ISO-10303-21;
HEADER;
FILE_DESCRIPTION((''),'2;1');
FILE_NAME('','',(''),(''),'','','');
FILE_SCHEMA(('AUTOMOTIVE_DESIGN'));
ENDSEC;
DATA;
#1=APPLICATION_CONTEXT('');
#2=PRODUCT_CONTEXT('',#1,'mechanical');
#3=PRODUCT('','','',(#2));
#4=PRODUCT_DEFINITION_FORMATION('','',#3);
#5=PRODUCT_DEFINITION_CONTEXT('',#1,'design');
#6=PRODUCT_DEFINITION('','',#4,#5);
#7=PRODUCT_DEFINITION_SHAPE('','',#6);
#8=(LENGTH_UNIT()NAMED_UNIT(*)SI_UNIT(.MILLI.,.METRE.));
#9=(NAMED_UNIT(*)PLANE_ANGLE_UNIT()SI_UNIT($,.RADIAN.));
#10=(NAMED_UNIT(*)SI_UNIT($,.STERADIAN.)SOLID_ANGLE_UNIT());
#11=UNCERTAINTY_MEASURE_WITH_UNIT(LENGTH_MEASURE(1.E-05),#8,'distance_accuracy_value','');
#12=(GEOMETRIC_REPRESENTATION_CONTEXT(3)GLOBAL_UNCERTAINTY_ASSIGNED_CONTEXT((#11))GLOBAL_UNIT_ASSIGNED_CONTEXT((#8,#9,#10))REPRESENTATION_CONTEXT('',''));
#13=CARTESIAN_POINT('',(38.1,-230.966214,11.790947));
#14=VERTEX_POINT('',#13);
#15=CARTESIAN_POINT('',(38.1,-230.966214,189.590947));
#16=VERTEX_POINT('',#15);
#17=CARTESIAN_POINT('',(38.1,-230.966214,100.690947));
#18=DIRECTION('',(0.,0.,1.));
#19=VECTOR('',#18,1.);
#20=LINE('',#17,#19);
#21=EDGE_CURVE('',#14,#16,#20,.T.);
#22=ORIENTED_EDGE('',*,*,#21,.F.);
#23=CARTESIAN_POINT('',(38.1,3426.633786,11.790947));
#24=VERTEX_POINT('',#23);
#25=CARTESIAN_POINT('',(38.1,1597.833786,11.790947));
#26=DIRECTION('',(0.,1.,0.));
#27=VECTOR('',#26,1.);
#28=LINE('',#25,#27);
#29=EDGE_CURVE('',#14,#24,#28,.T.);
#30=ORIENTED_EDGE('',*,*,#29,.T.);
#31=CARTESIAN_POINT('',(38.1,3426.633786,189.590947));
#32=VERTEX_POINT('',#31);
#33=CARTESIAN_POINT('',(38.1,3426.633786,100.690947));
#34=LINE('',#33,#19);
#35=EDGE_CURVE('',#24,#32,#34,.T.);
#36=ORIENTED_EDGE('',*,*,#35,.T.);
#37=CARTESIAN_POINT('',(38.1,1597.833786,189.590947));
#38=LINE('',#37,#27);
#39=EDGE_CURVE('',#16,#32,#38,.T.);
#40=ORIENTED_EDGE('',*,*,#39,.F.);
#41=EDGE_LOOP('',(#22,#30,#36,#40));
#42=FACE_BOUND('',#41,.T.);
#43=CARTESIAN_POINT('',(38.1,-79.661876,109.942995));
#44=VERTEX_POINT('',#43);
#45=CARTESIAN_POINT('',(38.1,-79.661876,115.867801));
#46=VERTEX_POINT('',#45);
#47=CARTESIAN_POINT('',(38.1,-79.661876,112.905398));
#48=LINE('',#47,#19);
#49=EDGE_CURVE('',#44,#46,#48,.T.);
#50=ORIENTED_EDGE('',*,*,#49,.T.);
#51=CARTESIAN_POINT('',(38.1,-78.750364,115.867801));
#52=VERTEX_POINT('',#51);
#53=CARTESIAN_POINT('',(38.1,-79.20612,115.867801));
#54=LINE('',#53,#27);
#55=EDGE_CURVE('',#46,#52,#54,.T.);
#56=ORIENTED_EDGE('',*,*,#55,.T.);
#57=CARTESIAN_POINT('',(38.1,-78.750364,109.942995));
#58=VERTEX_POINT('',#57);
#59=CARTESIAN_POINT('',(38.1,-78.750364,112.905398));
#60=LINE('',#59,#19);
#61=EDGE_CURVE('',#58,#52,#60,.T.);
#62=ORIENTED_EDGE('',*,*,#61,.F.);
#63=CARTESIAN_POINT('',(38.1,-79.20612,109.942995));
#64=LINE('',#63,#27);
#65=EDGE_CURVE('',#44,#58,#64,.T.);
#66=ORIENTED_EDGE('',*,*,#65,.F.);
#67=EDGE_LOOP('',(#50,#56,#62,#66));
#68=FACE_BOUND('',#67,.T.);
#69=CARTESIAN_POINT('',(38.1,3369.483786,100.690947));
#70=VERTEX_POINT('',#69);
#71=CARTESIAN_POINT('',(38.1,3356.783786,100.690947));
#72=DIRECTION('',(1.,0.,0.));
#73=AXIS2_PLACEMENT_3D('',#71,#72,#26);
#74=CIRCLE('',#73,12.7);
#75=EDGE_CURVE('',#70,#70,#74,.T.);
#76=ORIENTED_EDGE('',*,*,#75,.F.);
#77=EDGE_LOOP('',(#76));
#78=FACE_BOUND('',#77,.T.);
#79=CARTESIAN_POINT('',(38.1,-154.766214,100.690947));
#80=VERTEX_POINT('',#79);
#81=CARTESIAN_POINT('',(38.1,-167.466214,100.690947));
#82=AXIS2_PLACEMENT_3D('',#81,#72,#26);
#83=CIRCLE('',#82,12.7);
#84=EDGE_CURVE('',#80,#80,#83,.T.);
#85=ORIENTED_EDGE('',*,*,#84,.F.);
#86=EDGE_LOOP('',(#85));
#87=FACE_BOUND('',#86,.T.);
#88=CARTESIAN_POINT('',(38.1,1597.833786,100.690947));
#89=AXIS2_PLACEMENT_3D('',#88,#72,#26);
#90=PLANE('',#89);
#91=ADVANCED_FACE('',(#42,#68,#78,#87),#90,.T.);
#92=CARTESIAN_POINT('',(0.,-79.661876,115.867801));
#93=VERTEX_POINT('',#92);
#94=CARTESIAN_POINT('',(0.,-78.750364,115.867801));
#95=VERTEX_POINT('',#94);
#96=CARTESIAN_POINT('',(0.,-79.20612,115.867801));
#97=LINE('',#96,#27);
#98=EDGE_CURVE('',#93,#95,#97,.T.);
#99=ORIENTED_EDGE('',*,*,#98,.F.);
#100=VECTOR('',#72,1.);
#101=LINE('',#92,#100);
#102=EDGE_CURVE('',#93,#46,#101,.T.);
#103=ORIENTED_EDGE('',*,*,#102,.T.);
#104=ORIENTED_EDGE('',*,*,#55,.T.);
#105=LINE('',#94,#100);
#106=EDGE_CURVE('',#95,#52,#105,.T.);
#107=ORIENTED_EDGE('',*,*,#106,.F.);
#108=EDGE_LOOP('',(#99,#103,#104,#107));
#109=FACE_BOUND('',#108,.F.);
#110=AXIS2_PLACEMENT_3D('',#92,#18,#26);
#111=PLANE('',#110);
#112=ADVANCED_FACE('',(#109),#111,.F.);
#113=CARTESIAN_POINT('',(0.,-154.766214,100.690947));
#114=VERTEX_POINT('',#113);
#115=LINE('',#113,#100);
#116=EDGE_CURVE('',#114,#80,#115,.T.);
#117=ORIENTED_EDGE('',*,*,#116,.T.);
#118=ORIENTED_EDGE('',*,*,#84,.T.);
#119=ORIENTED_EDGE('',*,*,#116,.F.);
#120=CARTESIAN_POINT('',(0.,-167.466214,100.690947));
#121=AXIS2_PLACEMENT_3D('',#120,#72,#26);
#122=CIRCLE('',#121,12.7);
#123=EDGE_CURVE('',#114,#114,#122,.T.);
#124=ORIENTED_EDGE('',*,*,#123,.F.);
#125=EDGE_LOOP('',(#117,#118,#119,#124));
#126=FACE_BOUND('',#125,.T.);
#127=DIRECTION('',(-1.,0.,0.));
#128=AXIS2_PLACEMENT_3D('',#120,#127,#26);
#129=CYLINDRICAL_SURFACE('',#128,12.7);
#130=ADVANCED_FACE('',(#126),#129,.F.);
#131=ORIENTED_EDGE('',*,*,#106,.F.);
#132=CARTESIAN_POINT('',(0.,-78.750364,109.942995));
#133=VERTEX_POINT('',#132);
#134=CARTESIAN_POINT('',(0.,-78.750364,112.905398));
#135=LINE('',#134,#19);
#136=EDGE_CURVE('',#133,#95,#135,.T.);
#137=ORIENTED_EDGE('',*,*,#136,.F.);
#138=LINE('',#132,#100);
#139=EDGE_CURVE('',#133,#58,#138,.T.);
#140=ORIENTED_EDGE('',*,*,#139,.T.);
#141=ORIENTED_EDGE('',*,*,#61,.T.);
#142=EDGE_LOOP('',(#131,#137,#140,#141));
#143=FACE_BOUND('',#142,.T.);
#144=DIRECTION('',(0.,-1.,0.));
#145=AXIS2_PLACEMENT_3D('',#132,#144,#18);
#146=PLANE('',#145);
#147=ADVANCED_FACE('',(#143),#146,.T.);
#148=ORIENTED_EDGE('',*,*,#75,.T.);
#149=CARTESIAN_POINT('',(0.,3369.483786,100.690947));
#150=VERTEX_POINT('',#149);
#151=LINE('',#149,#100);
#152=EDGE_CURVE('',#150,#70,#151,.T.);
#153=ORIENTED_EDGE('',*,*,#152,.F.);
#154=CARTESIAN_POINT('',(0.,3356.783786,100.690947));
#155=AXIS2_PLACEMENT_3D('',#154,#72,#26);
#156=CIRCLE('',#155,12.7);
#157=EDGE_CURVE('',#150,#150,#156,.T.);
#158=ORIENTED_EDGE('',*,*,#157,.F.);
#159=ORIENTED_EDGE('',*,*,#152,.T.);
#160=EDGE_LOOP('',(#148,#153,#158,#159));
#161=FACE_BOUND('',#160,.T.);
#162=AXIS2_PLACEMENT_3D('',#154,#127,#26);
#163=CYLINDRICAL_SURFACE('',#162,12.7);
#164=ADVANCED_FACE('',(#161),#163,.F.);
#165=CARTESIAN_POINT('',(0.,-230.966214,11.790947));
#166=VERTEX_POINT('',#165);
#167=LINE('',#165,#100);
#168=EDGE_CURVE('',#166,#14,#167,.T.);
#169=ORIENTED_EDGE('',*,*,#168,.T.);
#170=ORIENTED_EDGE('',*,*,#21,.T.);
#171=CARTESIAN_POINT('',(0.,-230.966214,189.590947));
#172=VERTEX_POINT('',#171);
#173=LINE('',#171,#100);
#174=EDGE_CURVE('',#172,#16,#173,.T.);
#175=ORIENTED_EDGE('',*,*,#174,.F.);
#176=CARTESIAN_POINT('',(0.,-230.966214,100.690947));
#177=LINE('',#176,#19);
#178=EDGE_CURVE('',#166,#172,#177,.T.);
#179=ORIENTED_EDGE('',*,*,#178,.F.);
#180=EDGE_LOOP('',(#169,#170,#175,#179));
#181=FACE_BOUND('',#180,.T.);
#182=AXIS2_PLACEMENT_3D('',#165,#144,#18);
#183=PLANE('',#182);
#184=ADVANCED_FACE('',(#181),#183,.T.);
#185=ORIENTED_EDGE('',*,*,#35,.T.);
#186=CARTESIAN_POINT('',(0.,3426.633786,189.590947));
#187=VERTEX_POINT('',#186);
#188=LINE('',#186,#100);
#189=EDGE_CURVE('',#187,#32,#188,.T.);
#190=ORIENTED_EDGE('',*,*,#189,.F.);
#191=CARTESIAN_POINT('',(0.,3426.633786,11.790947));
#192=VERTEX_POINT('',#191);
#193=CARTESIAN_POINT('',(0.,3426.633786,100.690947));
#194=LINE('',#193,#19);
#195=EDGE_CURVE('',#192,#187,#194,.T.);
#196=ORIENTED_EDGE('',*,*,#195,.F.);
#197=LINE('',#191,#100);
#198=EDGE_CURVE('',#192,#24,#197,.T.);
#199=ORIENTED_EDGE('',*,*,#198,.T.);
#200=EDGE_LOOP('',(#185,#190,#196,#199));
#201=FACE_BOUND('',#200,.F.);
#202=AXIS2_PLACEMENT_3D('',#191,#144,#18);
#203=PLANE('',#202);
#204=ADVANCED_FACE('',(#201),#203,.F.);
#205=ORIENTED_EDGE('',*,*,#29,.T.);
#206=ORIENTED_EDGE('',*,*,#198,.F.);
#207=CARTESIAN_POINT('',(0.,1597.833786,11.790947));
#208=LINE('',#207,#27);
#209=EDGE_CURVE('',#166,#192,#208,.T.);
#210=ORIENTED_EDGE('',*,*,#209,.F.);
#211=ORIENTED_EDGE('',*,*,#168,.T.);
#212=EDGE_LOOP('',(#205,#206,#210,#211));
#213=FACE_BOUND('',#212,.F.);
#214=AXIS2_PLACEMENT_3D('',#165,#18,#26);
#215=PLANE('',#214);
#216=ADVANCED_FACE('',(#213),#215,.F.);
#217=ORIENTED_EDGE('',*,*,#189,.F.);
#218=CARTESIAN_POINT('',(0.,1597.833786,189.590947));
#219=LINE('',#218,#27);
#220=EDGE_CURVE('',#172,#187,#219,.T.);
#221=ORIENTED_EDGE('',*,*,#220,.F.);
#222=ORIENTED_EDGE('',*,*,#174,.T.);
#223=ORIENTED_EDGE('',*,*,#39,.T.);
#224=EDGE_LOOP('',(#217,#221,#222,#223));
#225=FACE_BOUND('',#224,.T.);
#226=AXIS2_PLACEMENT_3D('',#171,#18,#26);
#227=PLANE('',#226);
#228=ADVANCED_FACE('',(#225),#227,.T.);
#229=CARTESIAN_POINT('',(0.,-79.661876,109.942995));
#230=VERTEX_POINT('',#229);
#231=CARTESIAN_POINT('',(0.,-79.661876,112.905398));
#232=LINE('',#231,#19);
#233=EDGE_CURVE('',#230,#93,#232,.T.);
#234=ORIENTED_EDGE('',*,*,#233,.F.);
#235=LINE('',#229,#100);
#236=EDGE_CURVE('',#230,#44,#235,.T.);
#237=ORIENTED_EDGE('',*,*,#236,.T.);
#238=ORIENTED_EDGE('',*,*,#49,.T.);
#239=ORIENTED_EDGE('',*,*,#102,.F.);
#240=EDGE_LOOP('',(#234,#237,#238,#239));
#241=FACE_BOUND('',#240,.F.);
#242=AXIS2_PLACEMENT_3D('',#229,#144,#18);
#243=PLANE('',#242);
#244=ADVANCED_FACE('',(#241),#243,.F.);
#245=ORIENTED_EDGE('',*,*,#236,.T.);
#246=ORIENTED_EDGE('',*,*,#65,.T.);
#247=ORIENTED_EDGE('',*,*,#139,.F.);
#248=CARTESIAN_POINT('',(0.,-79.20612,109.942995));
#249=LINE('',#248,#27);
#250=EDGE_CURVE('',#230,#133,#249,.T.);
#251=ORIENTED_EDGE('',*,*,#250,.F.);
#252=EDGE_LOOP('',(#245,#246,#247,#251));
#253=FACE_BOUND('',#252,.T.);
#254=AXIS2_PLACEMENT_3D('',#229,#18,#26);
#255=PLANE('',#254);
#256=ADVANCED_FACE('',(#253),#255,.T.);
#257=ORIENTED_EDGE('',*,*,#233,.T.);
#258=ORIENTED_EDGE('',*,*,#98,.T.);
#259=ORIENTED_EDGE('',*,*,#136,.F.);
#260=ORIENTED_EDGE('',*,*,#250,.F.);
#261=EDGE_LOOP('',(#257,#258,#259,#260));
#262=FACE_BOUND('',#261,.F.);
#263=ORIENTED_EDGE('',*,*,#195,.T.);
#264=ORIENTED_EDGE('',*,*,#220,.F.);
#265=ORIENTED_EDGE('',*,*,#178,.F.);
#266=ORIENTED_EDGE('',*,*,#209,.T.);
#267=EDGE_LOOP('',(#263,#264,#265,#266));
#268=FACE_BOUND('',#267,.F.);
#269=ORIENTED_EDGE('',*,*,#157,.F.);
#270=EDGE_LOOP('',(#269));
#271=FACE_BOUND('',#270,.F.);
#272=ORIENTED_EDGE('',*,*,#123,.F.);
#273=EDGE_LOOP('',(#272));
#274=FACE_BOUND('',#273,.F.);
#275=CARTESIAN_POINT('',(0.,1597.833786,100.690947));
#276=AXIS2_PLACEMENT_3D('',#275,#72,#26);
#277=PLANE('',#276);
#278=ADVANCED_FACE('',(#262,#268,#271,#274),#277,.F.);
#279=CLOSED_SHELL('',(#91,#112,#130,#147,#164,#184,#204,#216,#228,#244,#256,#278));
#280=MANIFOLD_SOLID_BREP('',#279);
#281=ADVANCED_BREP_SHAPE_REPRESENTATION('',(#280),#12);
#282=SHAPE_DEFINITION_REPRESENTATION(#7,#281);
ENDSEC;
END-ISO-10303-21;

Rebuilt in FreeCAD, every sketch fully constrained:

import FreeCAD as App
import Part
import Sketcher

V = App.Vector
Q = App.Units.Quantity

doc = App.newDocument("Part")
body = doc.addObject("PartDesign::Body", "Body")

sketch1 = doc.addObject("Sketcher::SketchObject", "Sketch")
body.addObject(sketch1)
sketch1.AttachmentSupport = (doc.YZ_Plane, [""])
sketch1.MapMode = "FlatFace"
sketch1.addGeometry([
    Part.LineSegment(V(-230.966214, 189.590947, 0), V(-230.966214, 11.790947, 0)),
    Part.LineSegment(V(-230.966214, 11.790947, 0), V(3426.633786, 11.790947, 0)),
    Part.LineSegment(V(3426.633786, 11.790947, 0), V(3426.633786, 189.590947, 0)),
    Part.LineSegment(V(3426.633786, 189.590947, 0), V(-230.966214, 189.590947, 0)),
    Part.Circle(V(-167.466214, 100.690947, 0), V(0, 0, 1), 12.7),
    Part.Circle(V(3356.783786, 100.690947, 0), V(0, 0, 1), 12.7),
    Part.LineSegment(V(-78.750364, 109.942995, 0), V(-79.661876, 109.942995, 0)),
    Part.LineSegment(V(-79.661876, 109.942995, 0), V(-79.661876, 115.867801, 0)),
    Part.LineSegment(V(-79.661876, 115.867801, 0), V(-78.750364, 115.867801, 0)),
    Part.LineSegment(V(-78.750364, 115.867801, 0), V(-78.750364, 109.942995, 0)),
], False)
sketch1.addConstraint([
    Sketcher.Constraint("Coincident", 0, 2, 1, 1),
    Sketcher.Constraint("Coincident", 1, 2, 2, 1),
    Sketcher.Constraint("Coincident", 2, 2, 3, 1),
    Sketcher.Constraint("Coincident", 3, 2, 0, 1),
    Sketcher.Constraint("Coincident", 6, 2, 7, 1),
    Sketcher.Constraint("Coincident", 7, 2, 8, 1),
    Sketcher.Constraint("Coincident", 8, 2, 9, 1),
    Sketcher.Constraint("Coincident", 9, 2, 6, 1),
    Sketcher.Constraint("Vertical", 0),
    Sketcher.Constraint("Horizontal", 1),
    Sketcher.Constraint("Vertical", 2),
    Sketcher.Constraint("Horizontal", 3),
    Sketcher.Constraint("Horizontal", 6),
    Sketcher.Constraint("Vertical", 7),
    Sketcher.Constraint("Horizontal", 8),
    Sketcher.Constraint("Vertical", 9),
    Sketcher.Constraint("Equal", 4, 5),
    Sketcher.Constraint("Horizontal", 4, 3, 5, 3),
    Sketcher.Constraint("Diameter", 4, Q("1 in")),
    Sketcher.Constraint("DistanceX", 1, 1, 1, 2, Q("144 in")),
    Sketcher.Constraint("DistanceY", 0, 2, 0, 1, Q("7 in")),
    Sketcher.Constraint("DistanceX", 0, 2, 4, 3, Q("2.5 in")),
    Sketcher.Constraint("DistanceY", 0, 2, 4, 3, Q("3.5 in")),
    Sketcher.Constraint("DistanceX", 4, 3, 5, 3, Q("138.75 in")),
    Sketcher.Constraint("DistanceY", -1, 1, 7, 2, Q("115.867801 mm")),
    Sketcher.Constraint("DistanceX", 6, 2, 6, 1, Q("0.911512 mm")),
    Sketcher.Constraint("DistanceY", 7, 1, 7, 2, Q("5.924806 mm")),
    Sketcher.Constraint("DistanceX", 4, 3, 6, 2, Q("87.804338 mm")),
    Sketcher.Constraint("DistanceY", 4, 3, 6, 2, Q("9.252048 mm")),
    Sketcher.Constraint("DistanceX", 4, 3, -1, 1, Q("167.466214 mm")),
])
pad1 = doc.addObject("PartDesign::Pad", "Pad")
body.addObject(pad1)
pad1.Profile = sketch1
pad1.Length = Q("1.5 in")

doc.recompute()
